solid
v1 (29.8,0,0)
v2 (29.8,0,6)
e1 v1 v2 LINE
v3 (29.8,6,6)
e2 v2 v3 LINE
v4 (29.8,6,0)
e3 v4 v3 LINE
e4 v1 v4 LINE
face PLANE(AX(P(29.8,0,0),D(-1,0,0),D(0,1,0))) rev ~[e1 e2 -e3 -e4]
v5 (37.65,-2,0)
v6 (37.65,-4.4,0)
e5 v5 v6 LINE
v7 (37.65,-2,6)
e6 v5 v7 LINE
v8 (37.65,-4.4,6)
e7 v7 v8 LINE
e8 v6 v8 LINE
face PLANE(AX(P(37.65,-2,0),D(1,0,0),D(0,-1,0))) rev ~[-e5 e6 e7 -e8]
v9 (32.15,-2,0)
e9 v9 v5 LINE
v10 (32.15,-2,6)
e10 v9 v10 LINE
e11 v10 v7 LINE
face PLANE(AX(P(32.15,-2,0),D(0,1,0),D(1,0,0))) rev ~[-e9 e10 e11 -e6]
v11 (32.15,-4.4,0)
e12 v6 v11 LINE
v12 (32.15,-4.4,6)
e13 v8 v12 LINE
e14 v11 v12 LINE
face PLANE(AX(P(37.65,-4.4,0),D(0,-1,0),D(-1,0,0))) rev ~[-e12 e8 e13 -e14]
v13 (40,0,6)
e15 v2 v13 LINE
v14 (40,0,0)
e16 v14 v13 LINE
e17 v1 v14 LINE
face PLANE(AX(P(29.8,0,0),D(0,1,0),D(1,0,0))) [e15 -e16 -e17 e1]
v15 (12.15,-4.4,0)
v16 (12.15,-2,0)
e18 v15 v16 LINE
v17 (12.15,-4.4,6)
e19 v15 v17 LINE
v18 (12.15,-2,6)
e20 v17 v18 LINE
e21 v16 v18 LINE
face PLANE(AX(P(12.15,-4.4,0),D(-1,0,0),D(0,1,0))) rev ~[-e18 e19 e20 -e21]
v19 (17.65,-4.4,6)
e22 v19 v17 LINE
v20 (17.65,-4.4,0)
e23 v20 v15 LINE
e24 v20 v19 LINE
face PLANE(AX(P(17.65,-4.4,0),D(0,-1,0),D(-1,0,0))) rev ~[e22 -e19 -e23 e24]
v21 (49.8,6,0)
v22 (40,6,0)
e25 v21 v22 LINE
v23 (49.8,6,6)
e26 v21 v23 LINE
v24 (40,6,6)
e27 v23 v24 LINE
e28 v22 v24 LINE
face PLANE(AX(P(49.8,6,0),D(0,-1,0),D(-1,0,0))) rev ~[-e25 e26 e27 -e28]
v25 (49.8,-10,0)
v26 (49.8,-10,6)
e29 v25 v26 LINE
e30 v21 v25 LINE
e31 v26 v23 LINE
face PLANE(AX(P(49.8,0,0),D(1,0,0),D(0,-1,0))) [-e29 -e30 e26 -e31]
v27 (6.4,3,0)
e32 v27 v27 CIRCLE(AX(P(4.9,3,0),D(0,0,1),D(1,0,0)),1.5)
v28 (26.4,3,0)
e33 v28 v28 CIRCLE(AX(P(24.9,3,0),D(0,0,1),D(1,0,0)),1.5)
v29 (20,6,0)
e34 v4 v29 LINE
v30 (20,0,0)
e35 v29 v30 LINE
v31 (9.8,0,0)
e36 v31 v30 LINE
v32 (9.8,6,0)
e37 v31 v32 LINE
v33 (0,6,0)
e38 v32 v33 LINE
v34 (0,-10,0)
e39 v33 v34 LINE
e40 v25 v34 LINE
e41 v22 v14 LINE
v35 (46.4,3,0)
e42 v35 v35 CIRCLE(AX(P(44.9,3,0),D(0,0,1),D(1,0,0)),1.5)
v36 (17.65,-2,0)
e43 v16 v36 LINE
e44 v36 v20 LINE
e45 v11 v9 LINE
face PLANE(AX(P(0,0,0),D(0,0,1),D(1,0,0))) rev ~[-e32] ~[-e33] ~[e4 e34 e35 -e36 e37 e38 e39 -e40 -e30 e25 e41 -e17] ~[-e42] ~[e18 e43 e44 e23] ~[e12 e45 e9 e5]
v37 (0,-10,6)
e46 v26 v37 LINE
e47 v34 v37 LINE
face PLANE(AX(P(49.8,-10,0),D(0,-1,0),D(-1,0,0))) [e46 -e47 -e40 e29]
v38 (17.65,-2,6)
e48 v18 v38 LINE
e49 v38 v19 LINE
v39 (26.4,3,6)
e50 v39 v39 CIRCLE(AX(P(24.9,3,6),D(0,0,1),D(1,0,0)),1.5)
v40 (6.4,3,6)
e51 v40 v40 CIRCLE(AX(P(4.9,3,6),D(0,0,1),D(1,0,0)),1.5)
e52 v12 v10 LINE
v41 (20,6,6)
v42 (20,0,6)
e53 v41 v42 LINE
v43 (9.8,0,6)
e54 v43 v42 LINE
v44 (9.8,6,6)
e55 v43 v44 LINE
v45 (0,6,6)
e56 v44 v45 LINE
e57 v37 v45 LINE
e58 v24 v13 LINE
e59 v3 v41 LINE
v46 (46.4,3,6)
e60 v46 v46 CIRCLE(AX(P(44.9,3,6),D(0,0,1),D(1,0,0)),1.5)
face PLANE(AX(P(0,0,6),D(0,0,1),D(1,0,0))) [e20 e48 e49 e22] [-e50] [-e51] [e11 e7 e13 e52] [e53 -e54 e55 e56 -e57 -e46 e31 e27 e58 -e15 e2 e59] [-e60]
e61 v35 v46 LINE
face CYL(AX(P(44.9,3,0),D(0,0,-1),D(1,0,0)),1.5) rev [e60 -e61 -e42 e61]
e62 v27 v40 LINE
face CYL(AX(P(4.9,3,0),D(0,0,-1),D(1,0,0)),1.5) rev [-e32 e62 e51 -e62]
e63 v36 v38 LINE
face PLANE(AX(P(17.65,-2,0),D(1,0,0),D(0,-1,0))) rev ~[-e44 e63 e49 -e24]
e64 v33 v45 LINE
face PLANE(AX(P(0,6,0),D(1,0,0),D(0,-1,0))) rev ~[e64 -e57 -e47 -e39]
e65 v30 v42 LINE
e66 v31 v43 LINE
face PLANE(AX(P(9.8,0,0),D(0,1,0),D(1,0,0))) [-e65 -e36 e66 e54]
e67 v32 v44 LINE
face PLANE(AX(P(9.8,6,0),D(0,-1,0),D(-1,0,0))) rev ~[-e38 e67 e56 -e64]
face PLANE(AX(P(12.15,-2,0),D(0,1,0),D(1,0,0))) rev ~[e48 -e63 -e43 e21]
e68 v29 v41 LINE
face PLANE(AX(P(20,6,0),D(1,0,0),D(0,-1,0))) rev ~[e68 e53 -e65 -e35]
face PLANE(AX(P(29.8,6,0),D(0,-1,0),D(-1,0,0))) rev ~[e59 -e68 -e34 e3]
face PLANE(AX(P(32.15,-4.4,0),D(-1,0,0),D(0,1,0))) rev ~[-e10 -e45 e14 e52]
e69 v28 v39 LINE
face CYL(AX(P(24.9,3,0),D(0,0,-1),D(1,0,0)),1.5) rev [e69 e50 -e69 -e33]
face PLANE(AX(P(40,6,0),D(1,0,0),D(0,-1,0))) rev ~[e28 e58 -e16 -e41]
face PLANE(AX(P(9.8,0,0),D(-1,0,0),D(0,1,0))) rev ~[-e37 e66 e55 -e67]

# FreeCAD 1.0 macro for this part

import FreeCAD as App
import Part
import Sketcher
Q = App.Units.Quantity

doc = App.newDocument("Part")
body = doc.addObject("PartDesign::Body", "Body")

# Sketch on XY plane
sketch1 = body.newObject("Sketcher::SketchObject", "Sketch")
sketch1.AttachmentSupport = (doc.getObject("XY_Plane"), [""])
sketch1.MapMode = "FlatFace"
sketch1.addGeometry(Part.LineSegment(App.Vector(0, 6, 0), App.Vector(0, -10, 0)), False)
sketch1.addGeometry(Part.LineSegment(App.Vector(0, -10, 0), App.Vector(49.8, -10, 0)), False)
sketch1.addGeometry(Part.LineSegment(App.Vector(49.8, -10, 0), App.Vector(49.8, 6, 0)), False)
sketch1.addGeometry(Part.LineSegment(App.Vector(49.8, 6, 0), App.Vector(40, 6, 0)), False)
sketch1.addGeometry(Part.LineSegment(App.Vector(40, 6, 0), App.Vector(40, 0, 0)), False)
sketch1.addGeometry(Part.LineSegment(App.Vector(40, 0, 0), App.Vector(29.8, 0, 0)), False)
sketch1.addGeometry(Part.LineSegment(App.Vector(29.8, 0, 0), App.Vector(29.8, 6, 0)), False)
sketch1.addGeometry(Part.LineSegment(App.Vector(29.8, 6, 0), App.Vector(20, 6, 0)), False)
sketch1.addGeometry(Part.LineSegment(App.Vector(20, 6, 0), App.Vector(20, 0, 0)), False)
sketch1.addGeometry(Part.LineSegment(App.Vector(20, 0, 0), App.Vector(9.8, 0, 0)), False)
sketch1.addGeometry(Part.LineSegment(App.Vector(9.8, 0, 0), App.Vector(9.8, 6, 0)), False)
sketch1.addGeometry(Part.LineSegment(App.Vector(9.8, 6, 0), App.Vector(0, 6, 0)), False)
sketch1.addGeometry(Part.Circle(App.Vector(4.9, 3, 0), App.Vector(0, 0, 1), 1.5), False)
sketch1.addGeometry(Part.LineSegment(App.Vector(32.1, -2, 0), App.Vector(37.6, -2, 0)), False)
sketch1.addGeometry(Part.LineSegment(App.Vector(37.6, -2, 0), App.Vector(37.6, -4.4, 0)), False)
sketch1.addGeometry(Part.LineSegment(App.Vector(37.6, -4.4, 0), App.Vector(32.1, -4.4, 0)), False)
sketch1.addGeometry(Part.LineSegment(App.Vector(32.1, -4.4, 0), App.Vector(32.1, -2, 0)), False)
sketch1.addGeometry(Part.LineSegment(App.Vector(12.2, -4.4, 0), App.Vector(12.2, -2, 0)), False)
sketch1.addGeometry(Part.LineSegment(App.Vector(12.2, -2, 0), App.Vector(17.6, -2, 0)), False)
sketch1.addGeometry(Part.LineSegment(App.Vector(17.6, -2, 0), App.Vector(17.6, -4.4, 0)), False)
sketch1.addGeometry(Part.LineSegment(App.Vector(17.6, -4.4, 0), App.Vector(12.2, -4.4, 0)), False)
sketch1.addGeometry(Part.Circle(App.Vector(24.9, 3, 0), App.Vector(0, 0, 1), 1.5), False)
sketch1.addGeometry(Part.Circle(App.Vector(44.9, 3, 0), App.Vector(0, 0, 1), 1.5), False)
sketch1.addConstraint(Sketcher.Constraint("Coincident", 0, 2, 1, 1))
sketch1.addConstraint(Sketcher.Constraint("Coincident", 1, 2, 2, 1))
sketch1.addConstraint(Sketcher.Constraint("Coincident", 2, 2, 3, 1))
sketch1.addConstraint(Sketcher.Constraint("Coincident", 3, 2, 4, 1))
sketch1.addConstraint(Sketcher.Constraint("Coincident", 4, 2, 5, 1))
sketch1.addConstraint(Sketcher.Constraint("Coincident", 5, 2, 6, 1))
sketch1.addConstraint(Sketcher.Constraint("Coincident", 6, 2, 7, 1))
sketch1.addConstraint(Sketcher.Constraint("Coincident", 7, 2, 8, 1))
sketch1.addConstraint(Sketcher.Constraint("Coincident", 8, 2, 9, 1))
sketch1.addConstraint(Sketcher.Constraint("Coincident", 9, 2, 10, 1))
sketch1.addConstraint(Sketcher.Constraint("Coincident", 10, 2, 11, 1))
sketch1.addConstraint(Sketcher.Constraint("Coincident", 11, 2, 0, 1))
sketch1.addConstraint(Sketcher.Constraint("Coincident", 13, 2, 14, 1))
sketch1.addConstraint(Sketcher.Constraint("Coincident", 14, 2, 15, 1))
sketch1.addConstraint(Sketcher.Constraint("Coincident", 15, 2, 16, 1))
sketch1.addConstraint(Sketcher.Constraint("Coincident", 16, 2, 13, 1))
sketch1.addConstraint(Sketcher.Constraint("Coincident", 17, 2, 18, 1))
sketch1.addConstraint(Sketcher.Constraint("Coincident", 18, 2, 19, 1))
sketch1.addConstraint(Sketcher.Constraint("Coincident", 19, 2, 20, 1))
sketch1.addConstraint(Sketcher.Constraint("Coincident", 20, 2, 17, 1))
sketch1.addConstraint(Sketcher.Constraint("Vertical", 0))
sketch1.addConstraint(Sketcher.Constraint("Horizontal", 1))
sketch1.addConstraint(Sketcher.Constraint("Vertical", 2))
sketch1.addConstraint(Sketcher.Constraint("Horizontal", 3))
sketch1.addConstraint(Sketcher.Constraint("Vertical", 4))
sketch1.addConstraint(Sketcher.Constraint("Horizontal", 5))
sketch1.addConstraint(Sketcher.Constraint("Vertical", 6))
sketch1.addConstraint(Sketcher.Constraint("Horizontal", 7))
sketch1.addConstraint(Sketcher.Constraint("Vertical", 8))
sketch1.addConstraint(Sketcher.Constraint("Horizontal", 9))
sketch1.addConstraint(Sketcher.Constraint("Vertical", 10))
sketch1.addConstraint(Sketcher.Constraint("Horizontal", 11))
sketch1.addConstraint(Sketcher.Constraint("Horizontal", 13))
sketch1.addConstraint(Sketcher.Constraint("Vertical", 14))
sketch1.addConstraint(Sketcher.Constraint("Horizontal", 15))
sketch1.addConstraint(Sketcher.Constraint("Vertical", 16))
sketch1.addConstraint(Sketcher.Constraint("Vertical", 17))
sketch1.addConstraint(Sketcher.Constraint("Horizontal", 18))
sketch1.addConstraint(Sketcher.Constraint("Vertical", 19))
sketch1.addConstraint(Sketcher.Constraint("Horizontal", 20))
sketch1.addConstraint(Sketcher.Constraint("Equal", 12, 21))
sketch1.addConstraint(Sketcher.Constraint("Equal", 21, 22))
sketch1.addConstraint(Sketcher.Constraint("PointOnObject", 0, 2, -2))
sketch1.addConstraint(Sketcher.Constraint("PointOnObject", 4, 2, -1))
sketch1.addConstraint(Sketcher.Constraint("PointOnObject", 8, 2, -1))
sketch1.addConstraint(Sketcher.Constraint("Horizontal", 12, 3, 21, 3))
sketch1.addConstraint(Sketcher.Constraint("Horizontal", 21, 3, 22, 3))
sketch1.addConstraint(Sketcher.Constraint("Horizontal", 3, 2, 6, 2))
sketch1.addConstraint(Sketcher.Constraint("Horizontal", 7, 2, 10, 2))
sketch1.addConstraint(Sketcher.Constraint("Horizontal", 16, 2, 17, 2))
sketch1.addConstraint(Sketcher.Constraint("Horizontal", 15, 2, 19, 2))
sketch1.addConstraint(Sketcher.Constraint("Equal", 3, 7))
sketch1.addConstraint(Sketcher.Constraint("Equal", 5, 9))
sketch1.addConstraint(Sketcher.Constraint("Equal", 7, 11))
sketch1.addConstraint(Sketcher.Constraint("Equal", 15, 18))
sketch1.addConstraint(Sketcher.Constraint("Diameter", 12, Q("3 mm")))
sketch1.addConstraint(Sketcher.Constraint("DistanceY", 4, 2, 4, 1, Q("6 mm")))
sketch1.addConstraint(Sketcher.Constraint("DistanceX", 3, 2, 3, 1, Q("9.8 mm")))
sketch1.addConstraint(Sketcher.Constraint("DistanceX", 13, 1, 13, 2, Q("5.5 mm")))
sketch1.addConstraint(Sketcher.Constraint("DistanceY", 14, 2, 14, 1, Q("2.4 mm")))
sketch1.addConstraint(Sketcher.Constraint("DistanceY", -1, 1, 12, 3, Q("3 mm")))
sketch1.addConstraint(Sketcher.Constraint("DistanceY", 0, 2, -1, 1, Q("10 mm")))
sketch1.addConstraint(Sketcher.Constraint("DistanceX", -1, 1, 7, 2, Q("20 mm")))
sketch1.addConstraint(Sketcher.Constraint("DistanceX", 12, 3, 21, 3, Q("20 mm")))
sketch1.addConstraint(Sketcher.Constraint("DistanceX", 21, 3, 22, 3, Q("20 mm")))
sketch1.addConstraint(Sketcher.Constraint("DistanceY", 13, 2, 3, 2, Q("8 mm")))
sketch1.addConstraint(Sketcher.Constraint("DistanceX", 13, 2, 4, 2, Q("2.35 mm")))
sketch1.addConstraint(Sketcher.Constraint("DistanceX", 9, 2, 17, 2, Q("2.35 mm")))
sketch1.addConstraint(Sketcher.Constraint("DistanceX", -1, 1, 12, 3, Q("4.9 mm")))
pad1 = body.newObject("PartDesign::Pad", "Pad")
pad1.Profile = sketch1
pad1.Length = 6

doc.recompute()
